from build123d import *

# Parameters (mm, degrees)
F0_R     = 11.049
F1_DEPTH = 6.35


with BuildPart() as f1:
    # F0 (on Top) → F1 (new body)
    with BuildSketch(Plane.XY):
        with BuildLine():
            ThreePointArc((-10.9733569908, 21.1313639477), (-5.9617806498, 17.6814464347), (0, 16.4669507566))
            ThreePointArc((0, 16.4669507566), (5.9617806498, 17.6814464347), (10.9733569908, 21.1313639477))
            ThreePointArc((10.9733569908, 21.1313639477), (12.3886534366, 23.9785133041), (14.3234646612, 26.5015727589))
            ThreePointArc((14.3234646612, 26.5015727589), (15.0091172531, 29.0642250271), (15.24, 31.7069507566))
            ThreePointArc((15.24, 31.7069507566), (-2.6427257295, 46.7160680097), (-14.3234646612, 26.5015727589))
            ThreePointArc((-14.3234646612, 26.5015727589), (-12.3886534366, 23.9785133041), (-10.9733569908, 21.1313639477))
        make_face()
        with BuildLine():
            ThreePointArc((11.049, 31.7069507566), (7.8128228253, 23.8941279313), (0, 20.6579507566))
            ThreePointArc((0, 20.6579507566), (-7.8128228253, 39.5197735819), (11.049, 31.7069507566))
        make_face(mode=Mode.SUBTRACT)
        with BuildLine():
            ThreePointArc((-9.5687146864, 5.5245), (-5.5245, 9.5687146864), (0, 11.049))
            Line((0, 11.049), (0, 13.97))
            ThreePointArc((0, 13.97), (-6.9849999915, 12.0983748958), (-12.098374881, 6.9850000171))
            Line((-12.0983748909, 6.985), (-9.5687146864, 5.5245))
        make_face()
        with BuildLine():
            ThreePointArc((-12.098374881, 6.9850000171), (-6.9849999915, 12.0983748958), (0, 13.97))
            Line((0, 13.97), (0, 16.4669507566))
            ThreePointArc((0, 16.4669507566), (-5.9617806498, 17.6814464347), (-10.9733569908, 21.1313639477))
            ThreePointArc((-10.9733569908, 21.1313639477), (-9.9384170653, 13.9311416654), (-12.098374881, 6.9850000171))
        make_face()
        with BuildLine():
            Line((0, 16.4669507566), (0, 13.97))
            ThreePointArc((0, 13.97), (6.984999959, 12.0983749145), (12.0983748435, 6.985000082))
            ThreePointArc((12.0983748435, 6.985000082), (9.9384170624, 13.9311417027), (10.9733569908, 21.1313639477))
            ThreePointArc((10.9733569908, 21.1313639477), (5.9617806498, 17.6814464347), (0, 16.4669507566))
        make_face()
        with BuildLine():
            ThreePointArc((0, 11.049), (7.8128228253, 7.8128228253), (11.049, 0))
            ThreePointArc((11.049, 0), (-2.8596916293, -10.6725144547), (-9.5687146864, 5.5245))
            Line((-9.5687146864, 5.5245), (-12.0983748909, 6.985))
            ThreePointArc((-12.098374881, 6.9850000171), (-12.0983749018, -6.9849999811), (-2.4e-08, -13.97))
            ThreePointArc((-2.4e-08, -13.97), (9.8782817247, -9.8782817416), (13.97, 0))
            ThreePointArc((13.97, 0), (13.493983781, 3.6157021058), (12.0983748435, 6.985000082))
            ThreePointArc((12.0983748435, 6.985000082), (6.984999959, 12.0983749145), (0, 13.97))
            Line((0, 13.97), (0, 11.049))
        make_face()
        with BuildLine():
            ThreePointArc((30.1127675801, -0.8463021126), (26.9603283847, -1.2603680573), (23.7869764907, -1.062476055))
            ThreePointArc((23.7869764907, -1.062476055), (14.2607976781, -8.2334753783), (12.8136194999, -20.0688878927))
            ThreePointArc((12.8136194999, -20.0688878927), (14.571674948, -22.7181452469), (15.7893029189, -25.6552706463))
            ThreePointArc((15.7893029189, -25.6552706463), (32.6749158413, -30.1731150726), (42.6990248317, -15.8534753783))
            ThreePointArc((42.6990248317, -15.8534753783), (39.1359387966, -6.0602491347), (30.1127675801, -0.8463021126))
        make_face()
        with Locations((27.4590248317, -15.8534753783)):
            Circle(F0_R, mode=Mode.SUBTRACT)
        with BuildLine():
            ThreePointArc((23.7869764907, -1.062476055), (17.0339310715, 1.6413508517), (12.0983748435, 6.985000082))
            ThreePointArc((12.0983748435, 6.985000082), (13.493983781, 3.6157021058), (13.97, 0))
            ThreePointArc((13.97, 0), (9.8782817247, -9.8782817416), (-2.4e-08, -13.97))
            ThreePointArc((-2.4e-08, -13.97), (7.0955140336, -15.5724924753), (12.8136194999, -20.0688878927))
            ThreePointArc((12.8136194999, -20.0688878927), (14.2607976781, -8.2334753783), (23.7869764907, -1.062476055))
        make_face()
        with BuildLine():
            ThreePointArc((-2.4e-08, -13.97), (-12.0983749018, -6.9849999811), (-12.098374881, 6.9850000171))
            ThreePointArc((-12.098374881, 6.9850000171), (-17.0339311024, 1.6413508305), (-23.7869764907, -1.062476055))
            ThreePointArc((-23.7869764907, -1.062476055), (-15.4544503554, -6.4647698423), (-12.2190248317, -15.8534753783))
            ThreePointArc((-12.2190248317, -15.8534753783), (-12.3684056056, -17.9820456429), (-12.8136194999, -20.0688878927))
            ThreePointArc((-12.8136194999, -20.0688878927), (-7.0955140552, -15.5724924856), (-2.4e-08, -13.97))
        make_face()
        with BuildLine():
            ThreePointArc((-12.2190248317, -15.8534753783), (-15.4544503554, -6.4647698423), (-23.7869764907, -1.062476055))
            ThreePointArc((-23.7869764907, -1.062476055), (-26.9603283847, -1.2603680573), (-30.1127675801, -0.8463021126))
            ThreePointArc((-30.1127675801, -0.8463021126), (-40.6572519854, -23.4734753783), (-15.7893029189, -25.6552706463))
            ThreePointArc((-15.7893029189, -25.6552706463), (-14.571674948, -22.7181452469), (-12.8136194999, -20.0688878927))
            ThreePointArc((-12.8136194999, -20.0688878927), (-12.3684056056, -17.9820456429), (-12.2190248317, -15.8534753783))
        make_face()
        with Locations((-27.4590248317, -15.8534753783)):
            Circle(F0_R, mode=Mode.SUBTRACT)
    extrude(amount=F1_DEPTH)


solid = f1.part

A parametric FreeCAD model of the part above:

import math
import FreeCAD as App
import Part
import Sketcher
Q = App.Units.Quantity

doc = App.newDocument("Part")
body = doc.addObject("PartDesign::Body", "Body")

sketch1 = doc.addObject("Sketcher::SketchObject", "Sketch")
body.addObject(sketch1)
sketch1.AttachmentSupport = (doc.XY_Plane, [""])
sketch1.MapMode = "FlatFace"
sketch1.addGeometry(Part.ArcOfCircle(Part.Circle(App.Vector(-26, 15, 0), App.Vector(0, 0, 1), 17), math.radians(21), math.radians(43)), False)
sketch1.addGeometry(Part.ArcOfCircle(Part.Circle(App.Vector(-26, 15, 0), App.Vector(0, 0, 1), 17), math.radians(-30), math.radians(21)), False)
sketch1.addGeometry(Part.ArcOfCircle(Part.Circle(App.Vector(-26, 15, 0), App.Vector(0, 0, 1), 17), math.radians(-81), math.radians(-30)), False)
sketch1.addGeometry(Part.ArcOfCircle(Part.Circle(App.Vector(-26, 15, 0), App.Vector(0, 0, 1), 17), math.radians(-103), math.radians(-81)), False)
sketch1.addGeometry(Part.ArcOfCircle(Part.Circle(App.Vector(-27, -16, 0), App.Vector(0, 0, 1), 15), math.radians(100), math.radians(320)), False)
sketch1.addGeometry(Part.ArcOfCircle(Part.Circle(App.Vector(0, -30, 0), App.Vector(0, 0, 1), 17), math.radians(141), math.radians(163)), False)
sketch1.addGeometry(Part.ArcOfCircle(Part.Circle(App.Vector(0, -30, 0), App.Vector(0, 0, 1), 17), math.radians(39), math.radians(141)), False)
sketch1.addGeometry(Part.ArcOfCircle(Part.Circle(App.Vector(0, -30, 0), App.Vector(0, 0, 1), 17), math.radians(17), math.radians(39)), False)
sketch1.addGeometry(Part.ArcOfCircle(Part.Circle(App.Vector(27, -16, 0), App.Vector(0, 0, 1), 15), math.radians(-140), math.radians(0)), False)
sketch1.addGeometry(Part.ArcOfCircle(Part.Circle(App.Vector(27, -16, 0), App.Vector(0, 0, 1), 15), math.radians(0), math.radians(80)), False)
sketch1.addGeometry(Part.ArcOfCircle(Part.Circle(App.Vector(26, 15, 0), App.Vector(0, 0, 1), 17), math.radians(-99), math.radians(-77)), False)
sketch1.addGeometry(Part.ArcOfCircle(Part.Circle(App.Vector(26, 15, 0), App.Vector(0, 0, 1), 17), math.radians(-150), math.radians(-99)), False)
sketch1.addGeometry(Part.ArcOfCircle(Part.Circle(App.Vector(26, 15, 0), App.Vector(0, 0, 1), 17), math.radians(159), math.radians(210)), False)
sketch1.addGeometry(Part.ArcOfCircle(Part.Circle(App.Vector(26, 15, 0), App.Vector(0, 0, 1), 17), math.radians(137), math.radians(159)), False)
sketch1.addGeometry(Part.ArcOfCircle(Part.Circle(App.Vector(0, 32, 0), App.Vector(0, 0, 1), 15), math.radians(-19.97), math.radians(0)), False)
sketch1.addGeometry(Part.ArcOfCircle(Part.Circle(App.Vector(0, 32, 0), App.Vector(0, 0, 1), 15), math.radians(0), math.radians(200)), False)
sketch1.addGeometry(Part.Circle(App.Vector(-27, -16, 0), App.Vector(0, 0, 1), 11), False)
sketch1.addGeometry(Part.Circle(App.Vector(27, -16, 0), App.Vector(0, 0, 1), 11), False)
sketch1.addGeometry(Part.ArcOfCircle(Part.Circle(App.Vector(0, 0, 0), App.Vector(0, 0, 1), 11), math.radians(0), math.radians(90)), False)
sketch1.addGeometry(Part.ArcOfCircle(Part.Circle(App.Vector(0, 0, 0), App.Vector(0, 0, 1), 11), math.radians(90), math.radians(360)), False)
sketch1.addGeometry(Part.ArcOfCircle(Part.Circle(App.Vector(0, 32, 0), App.Vector(0, 0, 1), 11), math.radians(0), math.radians(270)), False)
sketch1.addGeometry(Part.ArcOfCircle(Part.Circle(App.Vector(0, 32, 0), App.Vector(0, 0, 1), 11), math.radians(-90), math.radians(0)), False)
sketch1.addConstraint(Sketcher.Constraint("Tangent", 0, 1, 1, 2))
sketch1.addConstraint(Sketcher.Constraint("Tangent", 1, 1, 2, 2))
sketch1.addConstraint(Sketcher.Constraint("Tangent", 2, 1, 3, 2))
sketch1.addConstraint(Sketcher.Constraint("Coincident", 3, 1, 4, 1))
sketch1.addConstraint(Sketcher.Constraint("Coincident", 4, 2, 5, 2))
sketch1.addConstraint(Sketcher.Constraint("Tangent", 5, 1, 6, 2))
sketch1.addConstraint(Sketcher.Constraint("Tangent", 6, 1, 7, 2))
sketch1.addConstraint(Sketcher.Constraint("Coincident", 7, 1, 8, 1))
sketch1.addConstraint(Sketcher.Constraint("Tangent", 8, 2, 9, 1))
sketch1.addConstraint(Sketcher.Constraint("Coincident", 9, 2, 10, 2))
sketch1.addConstraint(Sketcher.Constraint("Tangent", 10, 1, 11, 2))
sketch1.addConstraint(Sketcher.Constraint("Tangent", 11, 1, 12, 2))
sketch1.addConstraint(Sketcher.Constraint("Tangent", 12, 1, 13, 2))
sketch1.addConstraint(Sketcher.Constraint("Coincident", 13, 1, 14, 1))
sketch1.addConstraint(Sketcher.Constraint("Tangent", 14, 2, 15, 1))
sketch1.addConstraint(Sketcher.Constraint("Coincident", 15, 2, 0, 2))
sketch1.addConstraint(Sketcher.Constraint("Tangent", 18, 1, 19, 2))
sketch1.addConstraint(Sketcher.Constraint("Coincident", 19, 1, 18, 2))
sketch1.addConstraint(Sketcher.Constraint("Tangent", 20, 1, 21, 2))
sketch1.addConstraint(Sketcher.Constraint("Coincident", 21, 1, 20, 2))
sketch1.addConstraint(Sketcher.Constraint("Coincident", 18, 3, -1, 1))
sketch1.addConstraint(Sketcher.Constraint("Coincident", 2, 3, 0, 3))
sketch1.addConstraint(Sketcher.Constraint("Coincident", 7, 3, 5, 3))
sketch1.addConstraint(Sketcher.Constraint("Coincident", 12, 3, 10, 3))
sketch1.addConstraint(Sketcher.Constraint("Coincident", 16, 3, 4, 3))
sketch1.addConstraint(Sketcher.Constraint("Coincident", 17, 3, 8, 3))
sketch1.addConstraint(Sketcher.Constraint("Coincident", 20, 3, 14, 3))
sketch1.addConstraint(Sketcher.Constraint("Equal", 2, 3))
sketch1.addConstraint(Sketcher.Constraint("Equal", 3, 5))
sketch1.addConstraint(Sketcher.Constraint("Equal", 4, 8))
sketch1.addConstraint(Sketcher.Constraint("Equal", 8, 9))
sketch1.addConstraint(Sketcher.Constraint("Equal", 7, 10))
sketch1.addConstraint(Sketcher.Constraint("Equal", 12, 13))
sketch1.addConstraint(Sketcher.Constraint("Equal", 9, 14))
sketch1.addConstraint(Sketcher.Constraint("Equal", 14, 15))
sketch1.addConstraint(Sketcher.Constraint("Equal", 16, 17))
sketch1.addConstraint(Sketcher.Constraint("Equal", 17, 18))
sketch1.addConstraint(Sketcher.Constraint("Equal", 19, 20))
sketch1.addConstraint(Sketcher.Constraint("Symmetric", 4, 3, 8, 3, -2))
sketch1.addConstraint(Sketcher.Constraint("Symmetric", 0, 3, 10, 3, -2))
sketch1.addConstraint(Sketcher.Constraint("Symmetric", 5, 1, 6, 1, -2))
sketch1.addConstraint(Sketcher.Constraint("PointOnObject", 14, 3, -2))
sketch1.addConstraint(Sketcher.Constraint("PointOnObject", 18, 1, -1))
sketch1.addConstraint(Sketcher.Constraint("PointOnObject", 19, 1, -2))
sketch1.addConstraint(Sketcher.Constraint("PointOnObject", 21, 1, -2))
sketch1.addConstraint(Sketcher.Constraint("Horizontal", 17, 3, 8, 2))
sketch1.addConstraint(Sketcher.Constraint("Horizontal", 2, 1, 10, 1))
sketch1.addConstraint(Sketcher.Constraint("Horizontal", 1, 1, 11, 1))
sketch1.addConstraint(Sketcher.Constraint("Horizontal", 0, 1, 12, 1))
sketch1.addConstraint(Sketcher.Constraint("Horizontal", 21, 3, 14, 2))
sketch1.addConstraint(Sketcher.Constraint("Horizontal", 14, 2, 20, 1))
sketch1.addConstraint(Sketcher.Constraint("Radius", 4, Q("0.6 in")))
sketch1.addConstraint(Sketcher.Constraint("Diameter", 16, Q("0.87 in")))
sketch1.addConstraint(Sketcher.Constraint("Radius", 0, Q("0.65 in")))
sketch1.addConstraint(Sketcher.Constraint("DistanceY", -1, 1, 0, 3, Q("0.6 in")))
sketch1.addConstraint(Sketcher.Constraint("DistanceY", 5, 3, -1, 1, Q("1.2 in")))
sketch1.addConstraint(Sketcher.Constraint("DistanceY", 11, 1, 19, 1, Q("0.16 in")))
sketch1.addConstraint(Sketcher.Constraint("DistanceX", 2, 1, 1, 1, Q("11.688602 mm")))
sketch1.addConstraint(Sketcher.Constraint("DistanceY", 4, 3, 2, 1, Q("14.790999 mm")))
sketch1.addConstraint(Sketcher.Constraint("DistanceY", -1, 1, 14, 3, Q("31.706951 mm")))
sketch1.addConstraint(Sketcher.Constraint("DistanceY", 4, 2, -1, 1, Q("25.655271 mm")))
sketch1.addConstraint(Sketcher.Constraint("DistanceX", 5, 1, -1, 1, Q("12.81362 mm")))
sketch1.addConstraint(Sketcher.Constraint("DistanceX", 4, 3, 3, 3, Q("1.062571 mm")))
sketch1.addConstraint(Sketcher.Constraint("DistanceY", 12, 1, 13, 1, Q("5.370209 mm")))
pad1 = doc.addObject("PartDesign::Pad", "Pad")
body.addObject(pad1)
pad1.Profile = sketch1
pad1.Length = Q("0.25 in")

doc.recompute()
